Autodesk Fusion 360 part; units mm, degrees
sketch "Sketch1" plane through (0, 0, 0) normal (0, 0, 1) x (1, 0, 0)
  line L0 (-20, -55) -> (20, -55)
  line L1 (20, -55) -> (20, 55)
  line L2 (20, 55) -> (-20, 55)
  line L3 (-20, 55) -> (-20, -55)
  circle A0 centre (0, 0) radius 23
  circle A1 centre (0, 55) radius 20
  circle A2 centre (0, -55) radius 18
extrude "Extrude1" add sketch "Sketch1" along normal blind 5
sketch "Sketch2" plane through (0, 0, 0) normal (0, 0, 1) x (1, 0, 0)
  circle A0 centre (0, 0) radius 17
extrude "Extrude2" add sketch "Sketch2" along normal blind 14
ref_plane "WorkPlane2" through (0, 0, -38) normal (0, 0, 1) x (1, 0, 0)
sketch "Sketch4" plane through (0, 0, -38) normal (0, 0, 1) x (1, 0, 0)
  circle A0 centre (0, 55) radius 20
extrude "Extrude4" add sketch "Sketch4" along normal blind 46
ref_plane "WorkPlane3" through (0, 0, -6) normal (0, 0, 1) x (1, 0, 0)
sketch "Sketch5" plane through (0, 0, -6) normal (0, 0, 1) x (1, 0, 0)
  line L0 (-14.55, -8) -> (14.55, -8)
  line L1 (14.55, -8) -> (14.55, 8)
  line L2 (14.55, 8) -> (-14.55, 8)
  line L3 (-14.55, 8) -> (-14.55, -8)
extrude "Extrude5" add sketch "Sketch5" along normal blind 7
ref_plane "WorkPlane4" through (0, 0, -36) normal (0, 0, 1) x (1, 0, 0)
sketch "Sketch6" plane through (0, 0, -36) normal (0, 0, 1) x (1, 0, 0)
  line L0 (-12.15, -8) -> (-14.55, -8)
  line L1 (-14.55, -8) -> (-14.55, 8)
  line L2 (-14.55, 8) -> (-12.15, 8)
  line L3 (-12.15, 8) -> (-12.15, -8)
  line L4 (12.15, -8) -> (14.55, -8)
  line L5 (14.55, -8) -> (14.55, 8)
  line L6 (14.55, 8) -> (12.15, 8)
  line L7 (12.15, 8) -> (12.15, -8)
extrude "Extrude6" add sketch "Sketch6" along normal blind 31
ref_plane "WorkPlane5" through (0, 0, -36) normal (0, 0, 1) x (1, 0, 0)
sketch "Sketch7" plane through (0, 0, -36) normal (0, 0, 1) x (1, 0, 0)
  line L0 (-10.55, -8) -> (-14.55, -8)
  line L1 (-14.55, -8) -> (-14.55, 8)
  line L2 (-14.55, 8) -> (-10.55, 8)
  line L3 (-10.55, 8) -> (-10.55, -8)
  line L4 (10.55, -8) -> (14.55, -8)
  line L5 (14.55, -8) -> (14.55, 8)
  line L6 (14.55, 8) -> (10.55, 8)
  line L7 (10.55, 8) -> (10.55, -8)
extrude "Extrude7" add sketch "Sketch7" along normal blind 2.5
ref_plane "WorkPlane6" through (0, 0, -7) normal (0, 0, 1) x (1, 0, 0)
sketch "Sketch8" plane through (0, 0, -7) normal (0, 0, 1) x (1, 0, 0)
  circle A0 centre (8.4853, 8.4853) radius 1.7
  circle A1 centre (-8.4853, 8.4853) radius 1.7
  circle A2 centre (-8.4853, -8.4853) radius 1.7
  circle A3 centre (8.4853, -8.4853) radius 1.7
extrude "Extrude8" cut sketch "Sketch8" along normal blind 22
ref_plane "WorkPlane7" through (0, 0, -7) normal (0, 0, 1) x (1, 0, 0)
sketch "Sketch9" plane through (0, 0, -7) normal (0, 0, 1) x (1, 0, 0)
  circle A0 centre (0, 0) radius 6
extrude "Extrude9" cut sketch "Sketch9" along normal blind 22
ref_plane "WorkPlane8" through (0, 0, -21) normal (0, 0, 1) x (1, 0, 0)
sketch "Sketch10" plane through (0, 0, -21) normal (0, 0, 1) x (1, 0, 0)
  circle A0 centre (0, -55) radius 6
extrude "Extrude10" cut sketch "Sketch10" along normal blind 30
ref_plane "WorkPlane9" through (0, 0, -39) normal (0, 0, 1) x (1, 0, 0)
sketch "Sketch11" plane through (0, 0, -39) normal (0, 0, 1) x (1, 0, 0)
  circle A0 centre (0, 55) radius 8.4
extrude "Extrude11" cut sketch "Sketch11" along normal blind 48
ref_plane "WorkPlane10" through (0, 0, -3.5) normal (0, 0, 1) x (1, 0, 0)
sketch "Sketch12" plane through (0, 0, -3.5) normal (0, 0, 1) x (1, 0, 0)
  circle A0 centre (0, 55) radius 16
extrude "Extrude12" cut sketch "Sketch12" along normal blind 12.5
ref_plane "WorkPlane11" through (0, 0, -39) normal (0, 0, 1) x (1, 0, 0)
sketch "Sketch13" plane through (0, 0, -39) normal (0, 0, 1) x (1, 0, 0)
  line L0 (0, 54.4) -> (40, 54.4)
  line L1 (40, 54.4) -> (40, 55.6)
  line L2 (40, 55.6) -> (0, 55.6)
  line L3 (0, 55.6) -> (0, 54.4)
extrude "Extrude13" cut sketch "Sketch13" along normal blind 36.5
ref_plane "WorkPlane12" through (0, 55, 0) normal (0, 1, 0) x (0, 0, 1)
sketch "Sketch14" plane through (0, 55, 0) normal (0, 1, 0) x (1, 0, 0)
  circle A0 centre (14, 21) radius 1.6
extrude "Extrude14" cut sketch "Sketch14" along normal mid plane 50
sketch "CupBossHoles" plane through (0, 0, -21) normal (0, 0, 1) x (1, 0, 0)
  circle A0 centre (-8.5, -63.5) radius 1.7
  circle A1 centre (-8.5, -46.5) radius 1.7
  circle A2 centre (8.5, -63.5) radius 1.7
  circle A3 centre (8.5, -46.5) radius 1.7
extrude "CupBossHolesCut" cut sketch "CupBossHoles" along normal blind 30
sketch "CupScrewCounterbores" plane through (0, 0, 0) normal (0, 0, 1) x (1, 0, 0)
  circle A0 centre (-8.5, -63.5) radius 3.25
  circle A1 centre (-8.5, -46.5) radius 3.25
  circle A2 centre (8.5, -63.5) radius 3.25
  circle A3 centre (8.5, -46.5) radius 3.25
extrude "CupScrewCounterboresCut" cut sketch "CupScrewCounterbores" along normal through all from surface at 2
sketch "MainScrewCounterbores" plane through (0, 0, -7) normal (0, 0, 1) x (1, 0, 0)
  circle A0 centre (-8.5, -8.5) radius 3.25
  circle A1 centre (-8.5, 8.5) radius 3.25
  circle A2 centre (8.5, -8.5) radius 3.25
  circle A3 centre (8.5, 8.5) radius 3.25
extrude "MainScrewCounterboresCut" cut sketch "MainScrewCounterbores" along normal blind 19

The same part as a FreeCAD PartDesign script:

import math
import FreeCAD as App
import Part
import Sketcher

V = App.Vector
Q = App.Units.Quantity


def add_polygon(sketch, points):
    """Adds a closed chain of lines whose ends are joined by coincident constraints."""
    first, n = sketch.GeometryCount, len(points)
    for a, b in zip(points, points[1:] + points[:1]):
        sketch.addGeometry(Part.LineSegment(App.Vector(*a, 0), App.Vector(*b, 0)), False)
    for i in range(n):
        sketch.addConstraint(Sketcher.Constraint("Coincident", first + i, 2, first + (i + 1) % n, 1))

doc = App.newDocument("Part")
params = doc.addObject("Spreadsheet::Sheet", "Params")
for row, (alias, value) in enumerate([
    ("sketch1_radius", "18 mm"),
    ("sketch1_radius2", "23 mm"),
    ("sketch1_radius3", "20 mm"),
    ("pad1_length", "5 mm"),
    ("sketch2_diameter", "34 mm"),
    ("pad2_length", "14 mm"),
    ("sketch3_diameter", "40 mm"),
    ("pad3_length", "46 mm"),
    ("sketch4_height", "16 mm"),
    ("sketch4_width", "29.1 mm"),
    ("pad4_length", "7 mm"),
    ("sketch5_height", "16 mm"),
    ("sketch5_width", "2.4 mm"),
    ("pad5_length", "31 mm"),
    ("sketch6_width", "4 mm"),
    ("sketch6_height", "16 mm"),
    ("pad6_length", "2.5 mm"),
    ("sketch7_diameter", "3.4 mm"),
    ("pocket1_length", "22 mm"),
    ("sketch8_diameter", "12 mm"),
    ("pocket2_length", "22 mm"),
    ("sketch9_diameter", "12 mm"),
    ("pocket3_length", "30 mm"),
    ("sketch10_diameter", "16.8 mm"),
    ("pocket4_length", "48 mm"),
    ("sketch11_diameter", "32 mm"),
    ("pocket5_length", "12.5 mm"),
    ("sketch12_width", "40 mm"),
    ("sketch12_height", "1.2 mm"),
    ("pocket6_length", "36.5 mm"),
    ("sketch13_diameter", "3.2 mm"),
    ("pocket7_length", "50 mm"),
    ("sketch14_diameter", "3.4 mm"),
    ("pocket8_length", "30 mm"),
    ("sketch15_diameter", "6.5 mm"),
    ("sketch16_diameter", "6.5 mm"),
    ("pocket10_length", "19 mm"),
], start=1):
    params.set(f"A{row}", alias)
    params.set(f"B{row}", "=" + value)
    params.setAlias(f"B{row}", alias)

body = doc.addObject("PartDesign::Body", "Body")

# Sketch on XY plane
sketch1 = body.newObject("Sketcher::SketchObject", "Sketch")
sketch1.AttachmentSupport = (doc.getObject("XY_Plane"), [""])
sketch1.MapMode = "FlatFace"
sketch1.addGeometry([
    Part.LineSegment(V(-20, -55, 0), V(-18, -55, 0)),  # 0
    Part.ArcOfCircle(Part.Circle(V(0, -55, 0), V(0, 0, 1), 18), math.radians(180), math.radians(360)),  # 1
    Part.LineSegment(V(18, -55, 0), V(20, -55, 0)),  # 2
    Part.LineSegment(V(20, -55, 0), V(20, -11.357817, 0)),  # 3
    Part.ArcOfCircle(Part.Circle(V(0, 0, 0), V(0, 0, 1), 23), math.radians(-29.591846), math.radians(29.591846)),  # 4
    Part.LineSegment(V(20, 11.357817, 0), V(20, 55, 0)),  # 5
    Part.ArcOfCircle(Part.Circle(V(0, 55, 0), V(0, 0, 1), 20), math.radians(0), math.radians(180)),  # 6
    Part.LineSegment(V(-20, 55, 0), V(-20, 11.357817, 0)),  # 7
    Part.ArcOfCircle(Part.Circle(V(0, 0, 0), V(0, 0, 1), 23), math.radians(150.408154), math.radians(209.591846)),  # 8
    Part.LineSegment(V(-20, -11.357817, 0), V(-20, -55, 0)),  # 9
], False)
sketch1.addConstraint([
    Sketcher.Constraint("Coincident", 0, 2, 1, 1),
    Sketcher.Constraint("Coincident", 1, 2, 2, 1),
    Sketcher.Constraint("Coincident", 2, 2, 3, 1),
    Sketcher.Constraint("Coincident", 3, 2, 4, 1),
    Sketcher.Constraint("Coincident", 4, 2, 5, 1),
    Sketcher.Constraint("Tangent", 5, 2, 6, 1),
    Sketcher.Constraint("Tangent", 6, 2, 7, 1),
    Sketcher.Constraint("Coincident", 7, 2, 8, 1),
    Sketcher.Constraint("Coincident", 8, 2, 9, 1),
    Sketcher.Constraint("Coincident", 9, 2, 0, 1),
    Sketcher.Constraint("Horizontal", 0),
    Sketcher.Constraint("Horizontal", 2),
    Sketcher.Constraint("Vertical", 3),
    Sketcher.Constraint("Vertical", 5),
    Sketcher.Constraint("Vertical", 7),
    Sketcher.Constraint("Vertical", 9),
    Sketcher.Constraint("Coincident", 4, 3, -1, 1),
    Sketcher.Constraint("Coincident", 8, 3, -1, 1),
    Sketcher.Constraint("Equal", 4, 8),
    Sketcher.Constraint("Symmetric", 1, 3, 6, 3, -1, 1),
    Sketcher.Constraint("Symmetric", 2, 2, 6, 2, -1, 1),
    Sketcher.Constraint("Symmetric", 5, 2, 9, 2, -1, 1),
    Sketcher.Constraint("PointOnObject", 1, 3, -2),
    Sketcher.Constraint("Radius", 1, Q("18 mm")),
    Sketcher.Constraint("Radius", 4, Q("23 mm")),
    Sketcher.Constraint("Radius", 6, Q("20 mm")),
    Sketcher.Constraint("DistanceY", 1, 3, -1, 1, Q("55 mm")),
])
sketch1.setExpression("Constraints[23]", "Params.sketch1_radius")
sketch1.setExpression("Constraints[24]", "Params.sketch1_radius2")
sketch1.setExpression("Constraints[25]", "Params.sketch1_radius3")
pad1 = body.newObject("PartDesign::Pad", "Pad")
pad1.Profile = sketch1
pad1.setExpression("Length", "Params.pad1_length")

# Sketch on XY plane
sketch2 = body.newObject("Sketcher::SketchObject", "Sketch001")
sketch2.AttachmentSupport = (doc.getObject("XY_Plane"), [""])
sketch2.MapMode = "FlatFace"
sketch2.addGeometry(Part.Circle(V(0, 0, 0), V(0, 0, 1), 17), False)
sketch2.addConstraint([
    Sketcher.Constraint("Coincident", 0, 3, -1, 1),
    Sketcher.Constraint("Diameter", 0, Q("34 mm")),
])
sketch2.setExpression("Constraints[1]", "Params.sketch2_diameter")
pad2 = body.newObject("PartDesign::Pad", "Pad001")
pad2.Profile = sketch2
pad2.setExpression("Length", "Params.pad2_length")

# Sketch on XY plane
sketch3 = body.newObject("Sketcher::SketchObject", "Sketch002")
sketch3.AttachmentSupport = (doc.getObject("XY_Plane"), [""])
sketch3.MapMode = "FlatFace"
sketch3.AttachmentOffset = App.Placement(V(0, 0, -38), App.Rotation())
sketch3.addGeometry(Part.Circle(V(0, 55, 0), V(0, 0, 1), 20), False)
sketch3.addConstraint([
    Sketcher.Constraint("PointOnObject", 0, 3, -2),
    Sketcher.Constraint("Diameter", 0, Q("40 mm")),
    Sketcher.Constraint("DistanceY", -1, 1, 0, 3, Q("55 mm")),
])
sketch3.setExpression("Constraints[1]", "Params.sketch3_diameter")
pad3 = body.newObject("PartDesign::Pad", "Pad002")
pad3.Profile = sketch3
pad3.setExpression("Length", "Params.pad3_length")

# Sketch on XY plane
sketch4 = body.newObject("Sketcher::SketchObject", "Sketch003")
sketch4.AttachmentSupport = (doc.getObject("XY_Plane"), [""])
sketch4.MapMode = "FlatFace"
sketch4.AttachmentOffset = App.Placement(V(0, 0, -6), App.Rotation())
add_polygon(sketch4, [(-14.55, 8), (-14.55, -8), (14.55, -8), (14.55, 8)])  # lines 0-3
sketch4.addConstraint([
    Sketcher.Constraint("Vertical", 0),
    Sketcher.Constraint("Horizontal", 1),
    Sketcher.Constraint("Vertical", 2),
    Sketcher.Constraint("Horizontal", 3),
    Sketcher.Constraint("Symmetric", 0, 2, 2, 2, -1, 1),
    Sketcher.Constraint("DistanceY", 0, 2, 0, 1, Q("16 mm")),
    Sketcher.Constraint("DistanceX", 1, 1, 1, 2, Q("29.1 mm")),
])
sketch4.setExpression("Constraints[9]", "Params.sketch4_height")
sketch4.setExpression("Constraints[10]", "Params.sketch4_width")
pad4 = body.newObject("PartDesign::Pad", "Pad003")
pad4.Profile = sketch4
pad4.setExpression("Length", "Params.pad4_length")

# Sketch on XY plane
sketch5 = body.newObject("Sketcher::SketchObject", "Sketch004")
sketch5.AttachmentSupport = (doc.getObject("XY_Plane"), [""])
sketch5.MapMode = "FlatFace"
sketch5.AttachmentOffset = App.Placement(V(0, 0, -36), App.Rotation())
add_polygon(sketch5, [(-14.55, -8), (-12.15, -8), (-12.15, 8), (-14.55, 8)])  # lines 0-3
add_polygon(sketch5, [(12.15, 8), (12.15, -8), (14.55, -8), (14.55, 8)])  # lines 4-7
sketch5.addConstraint([
    Sketcher.Constraint("Horizontal", 0),
    Sketcher.Constraint("Vertical", 1),
    Sketcher.Constraint("Horizontal", 2),
    Sketcher.Constraint("Vertical", 3),
    Sketcher.Constraint("Vertical", 4),
    Sketcher.Constraint("Horizontal", 5),
    Sketcher.Constraint("Vertical", 6),
    Sketcher.Constraint("Horizontal", 7),
    Sketcher.Constraint("Symmetric", 1, 2, 4, 2, -1, 1),
    Sketcher.Constraint("Symmetric", 3, 2, 6, 2, -1, 1),
    Sketcher.Constraint("Horizontal", 3, 2, 4, 2),
    Sketcher.Constraint("DistanceY", 1, 1, 1, 2, Q("16 mm")),
    Sketcher.Constraint("DistanceX", 0, 1, 0, 2, Q("2.4 mm")),
    Sketcher.Constraint("DistanceX", 0, 2, 4, 2, Q("24.3 mm")),
])
sketch5.setExpression("Constraints[19]", "Params.sketch5_height")
sketch5.setExpression("Constraints[20]", "Params.sketch5_width")
pad5 = body.newObject("PartDesign::Pad", "Pad004")
pad5.Profile = sketch5
pad5.setExpression("Length", "Params.pad5_length")

# Sketch on XY plane
sketch6 = body.newObject("Sketcher::SketchObject", "Sketch005")
sketch6.AttachmentSupport = (doc.getObject("XY_Plane"), [""])
sketch6.MapMode = "FlatFace"
sketch6.AttachmentOffset = App.Placement(V(0, 0, -36), App.Rotation())
add_polygon(sketch6, [(-14.55, -8), (-10.55, -8), (-10.55, 8), (-14.55, 8)])  # lines 0-3
add_polygon(sketch6, [(10.55, 8), (10.55, -8), (14.55, -8), (14.55, 8)])  # lines 4-7
sketch6.addConstraint([
    Sketcher.Constraint("Horizontal", 0),
    Sketcher.Constraint("Vertical", 1),
    Sketcher.Constraint("Horizontal", 2),
    Sketcher.Constraint("Vertical", 3),
    Sketcher.Constraint("Vertical", 4),
    Sketcher.Constraint("Horizontal", 5),
    Sketcher.Constraint("Vertical", 6),
    Sketcher.Constraint("Horizontal", 7),
    Sketcher.Constraint("Symmetric", 1, 2, 4, 2, -1, 1),
    Sketcher.Constraint("Symmetric", 3, 2, 6, 2, -1, 1),
    Sketcher.Constraint("Horizontal", 3, 2, 4, 2),
    Sketcher.Constraint("DistanceX", 0, 1, 0, 2, Q("4 mm")),
    Sketcher.Constraint("DistanceY", 1, 1, 1, 2, Q("16 mm")),
    Sketcher.Constraint("DistanceX", 0, 2, 4, 2, Q("21.1 mm")),
])
sketch6.setExpression("Constraints[19]", "Params.sketch6_width")
sketch6.setExpression("Constraints[20]", "Params.sketch6_height")
pad6 = body.newObject("PartDesign::Pad", "Pad005")
pad6.Profile = sketch6
pad6.setExpression("Length", "Params.pad6_length")

# Sketch on XY plane
sketch7 = body.newObject("Sketcher::SketchObject", "Sketch006")
sketch7.AttachmentSupport = (doc.getObject("XY_Plane"), [""])
sketch7.MapMode = "FlatFace"
sketch7.AttachmentOffset = App.Placement(V(0, 0, -7), App.Rotation())
sketch7.addGeometry([
    Part.Circle(V(8.4853, 8.4853, 0), V(0, 0, 1), 1.7),
    Part.Circle(V(-8.4853, 8.4853, 0), V(0, 0, 1), 1.7),
    Part.Circle(V(-8.4853, -8.4853, 0), V(0, 0, 1), 1.7),
    Part.Circle(V(8.4853, -8.4853, 0), V(0, 0, 1), 1.7),
], False)
sketch7.addConstraint([
    Sketcher.Constraint("Equal", 0, 1),
    Sketcher.Constraint("Equal", 1, 2),
    Sketcher.Constraint("Equal", 2, 3),
    Sketcher.Constraint("Symmetric", 0, 3, 2, 3, -1, 1),
    Sketcher.Constraint("Symmetric", 1, 3, 3, 3, -1, 1),
    Sketcher.Constraint("Symmetric", 0, 3, 1, 3, -2),
    Sketcher.Constraint("Diameter", 0, Q("3.4 mm")),
    Sketcher.Constraint("DistanceX", -1, 1, 0, 3, Q("8.4853 mm")),
    Sketcher.Constraint("DistanceY", -1, 1, 0, 3, Q("8.4853 mm")),
])
sketch7.setExpression("Constraints[6]", "Params.sketch7_diameter")
pocket1 = body.newObject("PartDesign::Pocket", "Pocket")
pocket1.Profile = sketch7
pocket1.setExpression("Length", "Params.pocket1_length")
pocket1.Reversed = True

# Sketch on XY plane
sketch8 = body.newObject("Sketcher::SketchObject", "Sketch007")
sketch8.AttachmentSupport = (doc.getObject("XY_Plane"), [""])
sketch8.MapMode = "FlatFace"
sketch8.AttachmentOffset = App.Placement(V(0, 0, -7), App.Rotation())
sketch8.addGeometry(Part.Circle(V(0, 0, 0), V(0, 0, 1), 6), False)
sketch8.addConstraint([
    Sketcher.Constraint("Coincident", 0, 3, -1, 1),
    Sketcher.Constraint("Diameter", 0, Q("12 mm")),
])
sketch8.setExpression("Constraints[1]", "Params.sketch8_diameter")
pocket2 = body.newObject("PartDesign::Pocket", "Pocket001")
pocket2.Profile = sketch8
pocket2.setExpression("Length", "Params.pocket2_length")
pocket2.Reversed = True

# Sketch on XY plane
sketch9 = body.newObject("Sketcher::SketchObject", "Sketch008")
sketch9.AttachmentSupport = (doc.getObject("XY_Plane"), [""])
sketch9.MapMode = "FlatFace"
sketch9.AttachmentOffset = App.Placement(V(0, 0, -21), App.Rotation())
sketch9.addGeometry(Part.Circle(V(0, -55, 0), V(0, 0, 1), 6), False)
sketch9.addConstraint([
    Sketcher.Constraint("PointOnObject", 0, 3, -2),
    Sketcher.Constraint("Diameter", 0, Q("12 mm")),
    Sketcher.Constraint("DistanceY", 0, 3, -1, 1, Q("55 mm")),
])
sketch9.setExpression("Constraints[1]", "Params.sketch9_diameter")
pocket3 = body.newObject("PartDesign::Pocket", "Pocket002")
pocket3.Profile = sketch9
pocket3.setExpression("Length", "Params.pocket3_length")
pocket3.Reversed = True

# Sketch on XY plane
sketch10 = body.newObject("Sketcher::SketchObject", "Sketch009")
sketch10.AttachmentSupport = (doc.getObject("XY_Plane"), [""])
sketch10.MapMode = "FlatFace"
sketch10.AttachmentOffset = App.Placement(V(0, 0, -39), App.Rotation())
sketch10.addGeometry(Part.Circle(V(0, 55, 0), V(0, 0, 1), 8.4), False)
sketch10.addConstraint([
    Sketcher.Constraint("PointOnObject", 0, 3, -2),
    Sketcher.Constraint("Diameter", 0, Q("16.8 mm")),
    Sketcher.Constraint("DistanceY", -1, 1, 0, 3, Q("55 mm")),
])
sketch10.setExpression("Constraints[1]", "Params.sketch10_diameter")
pocket4 = body.newObject("PartDesign::Pocket", "Pocket003")
pocket4.Profile = sketch10
pocket4.setExpression("Length", "Params.pocket4_length")
pocket4.Reversed = True

# Sketch on XY plane
sketch11 = body.newObject("Sketcher::SketchObject", "Sketch010")
sketch11.AttachmentSupport = (doc.getObject("XY_Plane"), [""])
sketch11.MapMode = "FlatFace"
sketch11.AttachmentOffset = App.Placement(V(0, 0, -3.5), App.Rotation())
sketch11.addGeometry(Part.Circle(V(0, 55, 0), V(0, 0, 1), 16), False)
sketch11.addConstraint([
    Sketcher.Constraint("PointOnObject", 0, 3, -2),
    Sketcher.Constraint("Diameter", 0, Q("32 mm")),
    Sketcher.Constraint("DistanceY", -1, 1, 0, 3, Q("55 mm")),
])
sketch11.setExpression("Constraints[1]", "Params.sketch11_diameter")
pocket5 = body.newObject("PartDesign::Pocket", "Pocket004")
pocket5.Profile = sketch11
pocket5.setExpression("Length", "Params.pocket5_length")
pocket5.Reversed = True

# Sketch on XY plane
sketch12 = body.newObject("Sketcher::SketchObject", "Sketch011")
sketch12.AttachmentSupport = (doc.getObject("XY_Plane"), [""])
sketch12.MapMode = "FlatFace"
sketch12.AttachmentOffset = App.Placement(V(0, 0, -39), App.Rotation())
add_polygon(sketch12, [(0, 55.6), (0, 54.4), (40, 54.4), (40, 55.6)])  # lines 0-3
sketch12.addConstraint([
    Sketcher.Constraint("Vertical", 0),
    Sketcher.Constraint("Horizontal", 1),
    Sketcher.Constraint("Vertical", 2),
    Sketcher.Constraint("Horizontal", 3),
    Sketcher.Constraint("PointOnObject", 0, 2, -2),
    Sketcher.Constraint("DistanceX", 1, 1, 1, 2, Q("40 mm")),
    Sketcher.Constraint("DistanceY", 0, 2, 0, 1, Q("1.2 mm")),
    Sketcher.Constraint("DistanceY", -1, 1, 0, 2, Q("54.4 mm")),
])
sketch12.setExpression("Constraints[9]", "Params.sketch12_width")
sketch12.setExpression("Constraints[10]", "Params.sketch12_height")
pocket6 = body.newObject("PartDesign::Pocket", "Pocket005")
pocket6.Profile = sketch12
pocket6.setExpression("Length", "Params.pocket6_length")
pocket6.Reversed = True

# Sketch on XZ plane
sketch13 = body.newObject("Sketcher::SketchObject", "Sketch012")
sketch13.AttachmentSupport = (doc.getObject("XZ_Plane"), [""])
sketch13.MapMode = "FlatFace"
sketch13.AttachmentOffset = App.Placement(V(0, 0, -55), App.Rotation())
sketch13.addGeometry(Part.Circle(V(14, -21, 0), V(0, 0, 1), 1.6), False)
sketch13.addConstraint([
    Sketcher.Constraint("Diameter", 0, Q("3.2 mm")),
    Sketcher.Constraint("DistanceX", -1, 1, 0, 3, Q("14 mm")),
    Sketcher.Constraint("DistanceY", 0, 3, -1, 1, Q("21 mm")),
])
sketch13.setExpression("Constraints[0]", "Params.sketch13_diameter")
pocket7 = body.newObject("PartDesign::Pocket", "Pocket006")
pocket7.Profile = sketch13
pocket7.setExpression("Length", "Params.pocket7_length")
pocket7.Midplane = True

# Sketch on XY plane
sketch14 = body.newObject("Sketcher::SketchObject", "Sketch013")
sketch14.AttachmentSupport = (doc.getObject("XY_Plane"), [""])
sketch14.MapMode = "FlatFace"
sketch14.AttachmentOffset = App.Placement(V(0, 0, -21), App.Rotation())
sketch14.addGeometry([
    Part.Circle(V(-8.5, -63.5, 0), V(0, 0, 1), 1.7),
    Part.Circle(V(-8.5, -46.5, 0), V(0, 0, 1), 1.7),
    Part.Circle(V(8.5, -63.5, 0), V(0, 0, 1), 1.7),
    Part.Circle(V(8.5, -46.5, 0), V(0, 0, 1), 1.7),
], False)
sketch14.addConstraint([
    Sketcher.Constraint("Equal", 0, 1),
    Sketcher.Constraint("Equal", 1, 2),
    Sketcher.Constraint("Equal", 2, 3),
    Sketcher.Constraint("Symmetric", 0, 3, 2, 3, -2),
    Sketcher.Constraint("Symmetric", 1, 3, 3, 3, -2),
    Sketcher.Constraint("Vertical", 0, 3, 1, 3),
    Sketcher.Constraint("Diameter", 0, Q("3.4 mm")),
    Sketcher.Constraint("DistanceY", 0, 3, 1, 3, Q("17 mm")),
    Sketcher.Constraint("DistanceX", 0, 3, 2, 3, Q("17 mm")),
    Sketcher.Constraint("DistanceY", 0, 3, -1, 1, Q("63.5 mm")),
])
sketch14.setExpression("Constraints[6]", "Params.sketch14_diameter")
pocket8 = body.newObject("PartDesign::Pocket", "Pocket007")
pocket8.Profile = sketch14
pocket8.setExpression("Length", "Params.pocket8_length")
pocket8.Reversed = True

# Sketch on XY plane
sketch15 = body.newObject("Sketcher::SketchObject", "Sketch014")
sketch15.AttachmentSupport = (doc.getObject("XY_Plane"), [""])
sketch15.MapMode = "FlatFace"
sketch15.AttachmentOffset = App.Placement(V(0, 0, 2), App.Rotation())
sketch15.addGeometry([
    Part.Circle(V(-8.5, -63.5, 0), V(0, 0, 1), 3.25),
    Part.Circle(V(-8.5, -46.5, 0), V(0, 0, 1), 3.25),
    Part.Circle(V(8.5, -63.5, 0), V(0, 0, 1), 3.25),
    Part.Circle(V(8.5, -46.5, 0), V(0, 0, 1), 3.25),
], False)
sketch15.addConstraint([
    Sketcher.Constraint("Equal", 0, 1),
    Sketcher.Constraint("Equal", 1, 2),
    Sketcher.Constraint("Equal", 2, 3),
    Sketcher.Constraint("Symmetric", 0, 3, 2, 3, -2),
    Sketcher.Constraint("Symmetric", 1, 3, 3, 3, -2),
    Sketcher.Constraint("Vertical", 0, 3, 1, 3),
    Sketcher.Constraint("Diameter", 0, Q("6.5 mm")),
    Sketcher.Constraint("DistanceY", 0, 3, 1, 3, Q("17 mm")),
    Sketcher.Constraint("DistanceX", 0, 3, 2, 3, Q("17 mm")),
    Sketcher.Constraint("DistanceY", 0, 3, -1, 1, Q("63.5 mm")),
])
sketch15.setExpression("Constraints[6]", "Params.sketch15_diameter")
pocket9 = body.newObject("PartDesign::Pocket", "Pocket008")
pocket9.Profile = sketch15
pocket9.Type = "ThroughAll"
pocket9.Reversed = True

# Sketch on XY plane
sketch16 = body.newObject("Sketcher::SketchObject", "Sketch015")
sketch16.AttachmentSupport = (doc.getObject("XY_Plane"), [""])
sketch16.MapMode = "FlatFace"
sketch16.AttachmentOffset = App.Placement(V(0, 0, -7), App.Rotation())
sketch16.addGeometry([
    Part.Circle(V(-8.5, -8.5, 0), V(0, 0, 1), 3.25),
    Part.Circle(V(-8.5, 8.5, 0), V(0, 0, 1), 3.25),
    Part.Circle(V(8.5, -8.5, 0), V(0, 0, 1), 3.25),
    Part.Circle(V(8.5, 8.5, 0), V(0, 0, 1), 3.25),
], False)
sketch16.addConstraint([
    Sketcher.Constraint("Equal", 0, 1),
    Sketcher.Constraint("Equal", 1, 2),
    Sketcher.Constraint("Equal", 2, 3),
    Sketcher.Constraint("Symmetric", 1, 3, 2, 3, -1, 1),
    Sketcher.Constraint("Symmetric", 0, 3, 3, 3, -1, 1),
    Sketcher.Constraint("Symmetric", 0, 3, 2, 3, -2),
    Sketcher.Constraint("Diameter", 0, Q("6.5 mm")),
    Sketcher.Constraint("DistanceY", 0, 3, 1, 3, Q("17 mm")),
    Sketcher.Constraint("DistanceX", 0, 3, 2, 3, Q("17 mm")),
])
sketch16.setExpression("Constraints[6]", "Params.sketch16_diameter")
pocket10 = body.newObject("PartDesign::Pocket", "Pocket009")
pocket10.Profile = sketch16
pocket10.setExpression("Length", "Params.pocket10_length")
pocket10.Reversed = True

doc.recompute()
